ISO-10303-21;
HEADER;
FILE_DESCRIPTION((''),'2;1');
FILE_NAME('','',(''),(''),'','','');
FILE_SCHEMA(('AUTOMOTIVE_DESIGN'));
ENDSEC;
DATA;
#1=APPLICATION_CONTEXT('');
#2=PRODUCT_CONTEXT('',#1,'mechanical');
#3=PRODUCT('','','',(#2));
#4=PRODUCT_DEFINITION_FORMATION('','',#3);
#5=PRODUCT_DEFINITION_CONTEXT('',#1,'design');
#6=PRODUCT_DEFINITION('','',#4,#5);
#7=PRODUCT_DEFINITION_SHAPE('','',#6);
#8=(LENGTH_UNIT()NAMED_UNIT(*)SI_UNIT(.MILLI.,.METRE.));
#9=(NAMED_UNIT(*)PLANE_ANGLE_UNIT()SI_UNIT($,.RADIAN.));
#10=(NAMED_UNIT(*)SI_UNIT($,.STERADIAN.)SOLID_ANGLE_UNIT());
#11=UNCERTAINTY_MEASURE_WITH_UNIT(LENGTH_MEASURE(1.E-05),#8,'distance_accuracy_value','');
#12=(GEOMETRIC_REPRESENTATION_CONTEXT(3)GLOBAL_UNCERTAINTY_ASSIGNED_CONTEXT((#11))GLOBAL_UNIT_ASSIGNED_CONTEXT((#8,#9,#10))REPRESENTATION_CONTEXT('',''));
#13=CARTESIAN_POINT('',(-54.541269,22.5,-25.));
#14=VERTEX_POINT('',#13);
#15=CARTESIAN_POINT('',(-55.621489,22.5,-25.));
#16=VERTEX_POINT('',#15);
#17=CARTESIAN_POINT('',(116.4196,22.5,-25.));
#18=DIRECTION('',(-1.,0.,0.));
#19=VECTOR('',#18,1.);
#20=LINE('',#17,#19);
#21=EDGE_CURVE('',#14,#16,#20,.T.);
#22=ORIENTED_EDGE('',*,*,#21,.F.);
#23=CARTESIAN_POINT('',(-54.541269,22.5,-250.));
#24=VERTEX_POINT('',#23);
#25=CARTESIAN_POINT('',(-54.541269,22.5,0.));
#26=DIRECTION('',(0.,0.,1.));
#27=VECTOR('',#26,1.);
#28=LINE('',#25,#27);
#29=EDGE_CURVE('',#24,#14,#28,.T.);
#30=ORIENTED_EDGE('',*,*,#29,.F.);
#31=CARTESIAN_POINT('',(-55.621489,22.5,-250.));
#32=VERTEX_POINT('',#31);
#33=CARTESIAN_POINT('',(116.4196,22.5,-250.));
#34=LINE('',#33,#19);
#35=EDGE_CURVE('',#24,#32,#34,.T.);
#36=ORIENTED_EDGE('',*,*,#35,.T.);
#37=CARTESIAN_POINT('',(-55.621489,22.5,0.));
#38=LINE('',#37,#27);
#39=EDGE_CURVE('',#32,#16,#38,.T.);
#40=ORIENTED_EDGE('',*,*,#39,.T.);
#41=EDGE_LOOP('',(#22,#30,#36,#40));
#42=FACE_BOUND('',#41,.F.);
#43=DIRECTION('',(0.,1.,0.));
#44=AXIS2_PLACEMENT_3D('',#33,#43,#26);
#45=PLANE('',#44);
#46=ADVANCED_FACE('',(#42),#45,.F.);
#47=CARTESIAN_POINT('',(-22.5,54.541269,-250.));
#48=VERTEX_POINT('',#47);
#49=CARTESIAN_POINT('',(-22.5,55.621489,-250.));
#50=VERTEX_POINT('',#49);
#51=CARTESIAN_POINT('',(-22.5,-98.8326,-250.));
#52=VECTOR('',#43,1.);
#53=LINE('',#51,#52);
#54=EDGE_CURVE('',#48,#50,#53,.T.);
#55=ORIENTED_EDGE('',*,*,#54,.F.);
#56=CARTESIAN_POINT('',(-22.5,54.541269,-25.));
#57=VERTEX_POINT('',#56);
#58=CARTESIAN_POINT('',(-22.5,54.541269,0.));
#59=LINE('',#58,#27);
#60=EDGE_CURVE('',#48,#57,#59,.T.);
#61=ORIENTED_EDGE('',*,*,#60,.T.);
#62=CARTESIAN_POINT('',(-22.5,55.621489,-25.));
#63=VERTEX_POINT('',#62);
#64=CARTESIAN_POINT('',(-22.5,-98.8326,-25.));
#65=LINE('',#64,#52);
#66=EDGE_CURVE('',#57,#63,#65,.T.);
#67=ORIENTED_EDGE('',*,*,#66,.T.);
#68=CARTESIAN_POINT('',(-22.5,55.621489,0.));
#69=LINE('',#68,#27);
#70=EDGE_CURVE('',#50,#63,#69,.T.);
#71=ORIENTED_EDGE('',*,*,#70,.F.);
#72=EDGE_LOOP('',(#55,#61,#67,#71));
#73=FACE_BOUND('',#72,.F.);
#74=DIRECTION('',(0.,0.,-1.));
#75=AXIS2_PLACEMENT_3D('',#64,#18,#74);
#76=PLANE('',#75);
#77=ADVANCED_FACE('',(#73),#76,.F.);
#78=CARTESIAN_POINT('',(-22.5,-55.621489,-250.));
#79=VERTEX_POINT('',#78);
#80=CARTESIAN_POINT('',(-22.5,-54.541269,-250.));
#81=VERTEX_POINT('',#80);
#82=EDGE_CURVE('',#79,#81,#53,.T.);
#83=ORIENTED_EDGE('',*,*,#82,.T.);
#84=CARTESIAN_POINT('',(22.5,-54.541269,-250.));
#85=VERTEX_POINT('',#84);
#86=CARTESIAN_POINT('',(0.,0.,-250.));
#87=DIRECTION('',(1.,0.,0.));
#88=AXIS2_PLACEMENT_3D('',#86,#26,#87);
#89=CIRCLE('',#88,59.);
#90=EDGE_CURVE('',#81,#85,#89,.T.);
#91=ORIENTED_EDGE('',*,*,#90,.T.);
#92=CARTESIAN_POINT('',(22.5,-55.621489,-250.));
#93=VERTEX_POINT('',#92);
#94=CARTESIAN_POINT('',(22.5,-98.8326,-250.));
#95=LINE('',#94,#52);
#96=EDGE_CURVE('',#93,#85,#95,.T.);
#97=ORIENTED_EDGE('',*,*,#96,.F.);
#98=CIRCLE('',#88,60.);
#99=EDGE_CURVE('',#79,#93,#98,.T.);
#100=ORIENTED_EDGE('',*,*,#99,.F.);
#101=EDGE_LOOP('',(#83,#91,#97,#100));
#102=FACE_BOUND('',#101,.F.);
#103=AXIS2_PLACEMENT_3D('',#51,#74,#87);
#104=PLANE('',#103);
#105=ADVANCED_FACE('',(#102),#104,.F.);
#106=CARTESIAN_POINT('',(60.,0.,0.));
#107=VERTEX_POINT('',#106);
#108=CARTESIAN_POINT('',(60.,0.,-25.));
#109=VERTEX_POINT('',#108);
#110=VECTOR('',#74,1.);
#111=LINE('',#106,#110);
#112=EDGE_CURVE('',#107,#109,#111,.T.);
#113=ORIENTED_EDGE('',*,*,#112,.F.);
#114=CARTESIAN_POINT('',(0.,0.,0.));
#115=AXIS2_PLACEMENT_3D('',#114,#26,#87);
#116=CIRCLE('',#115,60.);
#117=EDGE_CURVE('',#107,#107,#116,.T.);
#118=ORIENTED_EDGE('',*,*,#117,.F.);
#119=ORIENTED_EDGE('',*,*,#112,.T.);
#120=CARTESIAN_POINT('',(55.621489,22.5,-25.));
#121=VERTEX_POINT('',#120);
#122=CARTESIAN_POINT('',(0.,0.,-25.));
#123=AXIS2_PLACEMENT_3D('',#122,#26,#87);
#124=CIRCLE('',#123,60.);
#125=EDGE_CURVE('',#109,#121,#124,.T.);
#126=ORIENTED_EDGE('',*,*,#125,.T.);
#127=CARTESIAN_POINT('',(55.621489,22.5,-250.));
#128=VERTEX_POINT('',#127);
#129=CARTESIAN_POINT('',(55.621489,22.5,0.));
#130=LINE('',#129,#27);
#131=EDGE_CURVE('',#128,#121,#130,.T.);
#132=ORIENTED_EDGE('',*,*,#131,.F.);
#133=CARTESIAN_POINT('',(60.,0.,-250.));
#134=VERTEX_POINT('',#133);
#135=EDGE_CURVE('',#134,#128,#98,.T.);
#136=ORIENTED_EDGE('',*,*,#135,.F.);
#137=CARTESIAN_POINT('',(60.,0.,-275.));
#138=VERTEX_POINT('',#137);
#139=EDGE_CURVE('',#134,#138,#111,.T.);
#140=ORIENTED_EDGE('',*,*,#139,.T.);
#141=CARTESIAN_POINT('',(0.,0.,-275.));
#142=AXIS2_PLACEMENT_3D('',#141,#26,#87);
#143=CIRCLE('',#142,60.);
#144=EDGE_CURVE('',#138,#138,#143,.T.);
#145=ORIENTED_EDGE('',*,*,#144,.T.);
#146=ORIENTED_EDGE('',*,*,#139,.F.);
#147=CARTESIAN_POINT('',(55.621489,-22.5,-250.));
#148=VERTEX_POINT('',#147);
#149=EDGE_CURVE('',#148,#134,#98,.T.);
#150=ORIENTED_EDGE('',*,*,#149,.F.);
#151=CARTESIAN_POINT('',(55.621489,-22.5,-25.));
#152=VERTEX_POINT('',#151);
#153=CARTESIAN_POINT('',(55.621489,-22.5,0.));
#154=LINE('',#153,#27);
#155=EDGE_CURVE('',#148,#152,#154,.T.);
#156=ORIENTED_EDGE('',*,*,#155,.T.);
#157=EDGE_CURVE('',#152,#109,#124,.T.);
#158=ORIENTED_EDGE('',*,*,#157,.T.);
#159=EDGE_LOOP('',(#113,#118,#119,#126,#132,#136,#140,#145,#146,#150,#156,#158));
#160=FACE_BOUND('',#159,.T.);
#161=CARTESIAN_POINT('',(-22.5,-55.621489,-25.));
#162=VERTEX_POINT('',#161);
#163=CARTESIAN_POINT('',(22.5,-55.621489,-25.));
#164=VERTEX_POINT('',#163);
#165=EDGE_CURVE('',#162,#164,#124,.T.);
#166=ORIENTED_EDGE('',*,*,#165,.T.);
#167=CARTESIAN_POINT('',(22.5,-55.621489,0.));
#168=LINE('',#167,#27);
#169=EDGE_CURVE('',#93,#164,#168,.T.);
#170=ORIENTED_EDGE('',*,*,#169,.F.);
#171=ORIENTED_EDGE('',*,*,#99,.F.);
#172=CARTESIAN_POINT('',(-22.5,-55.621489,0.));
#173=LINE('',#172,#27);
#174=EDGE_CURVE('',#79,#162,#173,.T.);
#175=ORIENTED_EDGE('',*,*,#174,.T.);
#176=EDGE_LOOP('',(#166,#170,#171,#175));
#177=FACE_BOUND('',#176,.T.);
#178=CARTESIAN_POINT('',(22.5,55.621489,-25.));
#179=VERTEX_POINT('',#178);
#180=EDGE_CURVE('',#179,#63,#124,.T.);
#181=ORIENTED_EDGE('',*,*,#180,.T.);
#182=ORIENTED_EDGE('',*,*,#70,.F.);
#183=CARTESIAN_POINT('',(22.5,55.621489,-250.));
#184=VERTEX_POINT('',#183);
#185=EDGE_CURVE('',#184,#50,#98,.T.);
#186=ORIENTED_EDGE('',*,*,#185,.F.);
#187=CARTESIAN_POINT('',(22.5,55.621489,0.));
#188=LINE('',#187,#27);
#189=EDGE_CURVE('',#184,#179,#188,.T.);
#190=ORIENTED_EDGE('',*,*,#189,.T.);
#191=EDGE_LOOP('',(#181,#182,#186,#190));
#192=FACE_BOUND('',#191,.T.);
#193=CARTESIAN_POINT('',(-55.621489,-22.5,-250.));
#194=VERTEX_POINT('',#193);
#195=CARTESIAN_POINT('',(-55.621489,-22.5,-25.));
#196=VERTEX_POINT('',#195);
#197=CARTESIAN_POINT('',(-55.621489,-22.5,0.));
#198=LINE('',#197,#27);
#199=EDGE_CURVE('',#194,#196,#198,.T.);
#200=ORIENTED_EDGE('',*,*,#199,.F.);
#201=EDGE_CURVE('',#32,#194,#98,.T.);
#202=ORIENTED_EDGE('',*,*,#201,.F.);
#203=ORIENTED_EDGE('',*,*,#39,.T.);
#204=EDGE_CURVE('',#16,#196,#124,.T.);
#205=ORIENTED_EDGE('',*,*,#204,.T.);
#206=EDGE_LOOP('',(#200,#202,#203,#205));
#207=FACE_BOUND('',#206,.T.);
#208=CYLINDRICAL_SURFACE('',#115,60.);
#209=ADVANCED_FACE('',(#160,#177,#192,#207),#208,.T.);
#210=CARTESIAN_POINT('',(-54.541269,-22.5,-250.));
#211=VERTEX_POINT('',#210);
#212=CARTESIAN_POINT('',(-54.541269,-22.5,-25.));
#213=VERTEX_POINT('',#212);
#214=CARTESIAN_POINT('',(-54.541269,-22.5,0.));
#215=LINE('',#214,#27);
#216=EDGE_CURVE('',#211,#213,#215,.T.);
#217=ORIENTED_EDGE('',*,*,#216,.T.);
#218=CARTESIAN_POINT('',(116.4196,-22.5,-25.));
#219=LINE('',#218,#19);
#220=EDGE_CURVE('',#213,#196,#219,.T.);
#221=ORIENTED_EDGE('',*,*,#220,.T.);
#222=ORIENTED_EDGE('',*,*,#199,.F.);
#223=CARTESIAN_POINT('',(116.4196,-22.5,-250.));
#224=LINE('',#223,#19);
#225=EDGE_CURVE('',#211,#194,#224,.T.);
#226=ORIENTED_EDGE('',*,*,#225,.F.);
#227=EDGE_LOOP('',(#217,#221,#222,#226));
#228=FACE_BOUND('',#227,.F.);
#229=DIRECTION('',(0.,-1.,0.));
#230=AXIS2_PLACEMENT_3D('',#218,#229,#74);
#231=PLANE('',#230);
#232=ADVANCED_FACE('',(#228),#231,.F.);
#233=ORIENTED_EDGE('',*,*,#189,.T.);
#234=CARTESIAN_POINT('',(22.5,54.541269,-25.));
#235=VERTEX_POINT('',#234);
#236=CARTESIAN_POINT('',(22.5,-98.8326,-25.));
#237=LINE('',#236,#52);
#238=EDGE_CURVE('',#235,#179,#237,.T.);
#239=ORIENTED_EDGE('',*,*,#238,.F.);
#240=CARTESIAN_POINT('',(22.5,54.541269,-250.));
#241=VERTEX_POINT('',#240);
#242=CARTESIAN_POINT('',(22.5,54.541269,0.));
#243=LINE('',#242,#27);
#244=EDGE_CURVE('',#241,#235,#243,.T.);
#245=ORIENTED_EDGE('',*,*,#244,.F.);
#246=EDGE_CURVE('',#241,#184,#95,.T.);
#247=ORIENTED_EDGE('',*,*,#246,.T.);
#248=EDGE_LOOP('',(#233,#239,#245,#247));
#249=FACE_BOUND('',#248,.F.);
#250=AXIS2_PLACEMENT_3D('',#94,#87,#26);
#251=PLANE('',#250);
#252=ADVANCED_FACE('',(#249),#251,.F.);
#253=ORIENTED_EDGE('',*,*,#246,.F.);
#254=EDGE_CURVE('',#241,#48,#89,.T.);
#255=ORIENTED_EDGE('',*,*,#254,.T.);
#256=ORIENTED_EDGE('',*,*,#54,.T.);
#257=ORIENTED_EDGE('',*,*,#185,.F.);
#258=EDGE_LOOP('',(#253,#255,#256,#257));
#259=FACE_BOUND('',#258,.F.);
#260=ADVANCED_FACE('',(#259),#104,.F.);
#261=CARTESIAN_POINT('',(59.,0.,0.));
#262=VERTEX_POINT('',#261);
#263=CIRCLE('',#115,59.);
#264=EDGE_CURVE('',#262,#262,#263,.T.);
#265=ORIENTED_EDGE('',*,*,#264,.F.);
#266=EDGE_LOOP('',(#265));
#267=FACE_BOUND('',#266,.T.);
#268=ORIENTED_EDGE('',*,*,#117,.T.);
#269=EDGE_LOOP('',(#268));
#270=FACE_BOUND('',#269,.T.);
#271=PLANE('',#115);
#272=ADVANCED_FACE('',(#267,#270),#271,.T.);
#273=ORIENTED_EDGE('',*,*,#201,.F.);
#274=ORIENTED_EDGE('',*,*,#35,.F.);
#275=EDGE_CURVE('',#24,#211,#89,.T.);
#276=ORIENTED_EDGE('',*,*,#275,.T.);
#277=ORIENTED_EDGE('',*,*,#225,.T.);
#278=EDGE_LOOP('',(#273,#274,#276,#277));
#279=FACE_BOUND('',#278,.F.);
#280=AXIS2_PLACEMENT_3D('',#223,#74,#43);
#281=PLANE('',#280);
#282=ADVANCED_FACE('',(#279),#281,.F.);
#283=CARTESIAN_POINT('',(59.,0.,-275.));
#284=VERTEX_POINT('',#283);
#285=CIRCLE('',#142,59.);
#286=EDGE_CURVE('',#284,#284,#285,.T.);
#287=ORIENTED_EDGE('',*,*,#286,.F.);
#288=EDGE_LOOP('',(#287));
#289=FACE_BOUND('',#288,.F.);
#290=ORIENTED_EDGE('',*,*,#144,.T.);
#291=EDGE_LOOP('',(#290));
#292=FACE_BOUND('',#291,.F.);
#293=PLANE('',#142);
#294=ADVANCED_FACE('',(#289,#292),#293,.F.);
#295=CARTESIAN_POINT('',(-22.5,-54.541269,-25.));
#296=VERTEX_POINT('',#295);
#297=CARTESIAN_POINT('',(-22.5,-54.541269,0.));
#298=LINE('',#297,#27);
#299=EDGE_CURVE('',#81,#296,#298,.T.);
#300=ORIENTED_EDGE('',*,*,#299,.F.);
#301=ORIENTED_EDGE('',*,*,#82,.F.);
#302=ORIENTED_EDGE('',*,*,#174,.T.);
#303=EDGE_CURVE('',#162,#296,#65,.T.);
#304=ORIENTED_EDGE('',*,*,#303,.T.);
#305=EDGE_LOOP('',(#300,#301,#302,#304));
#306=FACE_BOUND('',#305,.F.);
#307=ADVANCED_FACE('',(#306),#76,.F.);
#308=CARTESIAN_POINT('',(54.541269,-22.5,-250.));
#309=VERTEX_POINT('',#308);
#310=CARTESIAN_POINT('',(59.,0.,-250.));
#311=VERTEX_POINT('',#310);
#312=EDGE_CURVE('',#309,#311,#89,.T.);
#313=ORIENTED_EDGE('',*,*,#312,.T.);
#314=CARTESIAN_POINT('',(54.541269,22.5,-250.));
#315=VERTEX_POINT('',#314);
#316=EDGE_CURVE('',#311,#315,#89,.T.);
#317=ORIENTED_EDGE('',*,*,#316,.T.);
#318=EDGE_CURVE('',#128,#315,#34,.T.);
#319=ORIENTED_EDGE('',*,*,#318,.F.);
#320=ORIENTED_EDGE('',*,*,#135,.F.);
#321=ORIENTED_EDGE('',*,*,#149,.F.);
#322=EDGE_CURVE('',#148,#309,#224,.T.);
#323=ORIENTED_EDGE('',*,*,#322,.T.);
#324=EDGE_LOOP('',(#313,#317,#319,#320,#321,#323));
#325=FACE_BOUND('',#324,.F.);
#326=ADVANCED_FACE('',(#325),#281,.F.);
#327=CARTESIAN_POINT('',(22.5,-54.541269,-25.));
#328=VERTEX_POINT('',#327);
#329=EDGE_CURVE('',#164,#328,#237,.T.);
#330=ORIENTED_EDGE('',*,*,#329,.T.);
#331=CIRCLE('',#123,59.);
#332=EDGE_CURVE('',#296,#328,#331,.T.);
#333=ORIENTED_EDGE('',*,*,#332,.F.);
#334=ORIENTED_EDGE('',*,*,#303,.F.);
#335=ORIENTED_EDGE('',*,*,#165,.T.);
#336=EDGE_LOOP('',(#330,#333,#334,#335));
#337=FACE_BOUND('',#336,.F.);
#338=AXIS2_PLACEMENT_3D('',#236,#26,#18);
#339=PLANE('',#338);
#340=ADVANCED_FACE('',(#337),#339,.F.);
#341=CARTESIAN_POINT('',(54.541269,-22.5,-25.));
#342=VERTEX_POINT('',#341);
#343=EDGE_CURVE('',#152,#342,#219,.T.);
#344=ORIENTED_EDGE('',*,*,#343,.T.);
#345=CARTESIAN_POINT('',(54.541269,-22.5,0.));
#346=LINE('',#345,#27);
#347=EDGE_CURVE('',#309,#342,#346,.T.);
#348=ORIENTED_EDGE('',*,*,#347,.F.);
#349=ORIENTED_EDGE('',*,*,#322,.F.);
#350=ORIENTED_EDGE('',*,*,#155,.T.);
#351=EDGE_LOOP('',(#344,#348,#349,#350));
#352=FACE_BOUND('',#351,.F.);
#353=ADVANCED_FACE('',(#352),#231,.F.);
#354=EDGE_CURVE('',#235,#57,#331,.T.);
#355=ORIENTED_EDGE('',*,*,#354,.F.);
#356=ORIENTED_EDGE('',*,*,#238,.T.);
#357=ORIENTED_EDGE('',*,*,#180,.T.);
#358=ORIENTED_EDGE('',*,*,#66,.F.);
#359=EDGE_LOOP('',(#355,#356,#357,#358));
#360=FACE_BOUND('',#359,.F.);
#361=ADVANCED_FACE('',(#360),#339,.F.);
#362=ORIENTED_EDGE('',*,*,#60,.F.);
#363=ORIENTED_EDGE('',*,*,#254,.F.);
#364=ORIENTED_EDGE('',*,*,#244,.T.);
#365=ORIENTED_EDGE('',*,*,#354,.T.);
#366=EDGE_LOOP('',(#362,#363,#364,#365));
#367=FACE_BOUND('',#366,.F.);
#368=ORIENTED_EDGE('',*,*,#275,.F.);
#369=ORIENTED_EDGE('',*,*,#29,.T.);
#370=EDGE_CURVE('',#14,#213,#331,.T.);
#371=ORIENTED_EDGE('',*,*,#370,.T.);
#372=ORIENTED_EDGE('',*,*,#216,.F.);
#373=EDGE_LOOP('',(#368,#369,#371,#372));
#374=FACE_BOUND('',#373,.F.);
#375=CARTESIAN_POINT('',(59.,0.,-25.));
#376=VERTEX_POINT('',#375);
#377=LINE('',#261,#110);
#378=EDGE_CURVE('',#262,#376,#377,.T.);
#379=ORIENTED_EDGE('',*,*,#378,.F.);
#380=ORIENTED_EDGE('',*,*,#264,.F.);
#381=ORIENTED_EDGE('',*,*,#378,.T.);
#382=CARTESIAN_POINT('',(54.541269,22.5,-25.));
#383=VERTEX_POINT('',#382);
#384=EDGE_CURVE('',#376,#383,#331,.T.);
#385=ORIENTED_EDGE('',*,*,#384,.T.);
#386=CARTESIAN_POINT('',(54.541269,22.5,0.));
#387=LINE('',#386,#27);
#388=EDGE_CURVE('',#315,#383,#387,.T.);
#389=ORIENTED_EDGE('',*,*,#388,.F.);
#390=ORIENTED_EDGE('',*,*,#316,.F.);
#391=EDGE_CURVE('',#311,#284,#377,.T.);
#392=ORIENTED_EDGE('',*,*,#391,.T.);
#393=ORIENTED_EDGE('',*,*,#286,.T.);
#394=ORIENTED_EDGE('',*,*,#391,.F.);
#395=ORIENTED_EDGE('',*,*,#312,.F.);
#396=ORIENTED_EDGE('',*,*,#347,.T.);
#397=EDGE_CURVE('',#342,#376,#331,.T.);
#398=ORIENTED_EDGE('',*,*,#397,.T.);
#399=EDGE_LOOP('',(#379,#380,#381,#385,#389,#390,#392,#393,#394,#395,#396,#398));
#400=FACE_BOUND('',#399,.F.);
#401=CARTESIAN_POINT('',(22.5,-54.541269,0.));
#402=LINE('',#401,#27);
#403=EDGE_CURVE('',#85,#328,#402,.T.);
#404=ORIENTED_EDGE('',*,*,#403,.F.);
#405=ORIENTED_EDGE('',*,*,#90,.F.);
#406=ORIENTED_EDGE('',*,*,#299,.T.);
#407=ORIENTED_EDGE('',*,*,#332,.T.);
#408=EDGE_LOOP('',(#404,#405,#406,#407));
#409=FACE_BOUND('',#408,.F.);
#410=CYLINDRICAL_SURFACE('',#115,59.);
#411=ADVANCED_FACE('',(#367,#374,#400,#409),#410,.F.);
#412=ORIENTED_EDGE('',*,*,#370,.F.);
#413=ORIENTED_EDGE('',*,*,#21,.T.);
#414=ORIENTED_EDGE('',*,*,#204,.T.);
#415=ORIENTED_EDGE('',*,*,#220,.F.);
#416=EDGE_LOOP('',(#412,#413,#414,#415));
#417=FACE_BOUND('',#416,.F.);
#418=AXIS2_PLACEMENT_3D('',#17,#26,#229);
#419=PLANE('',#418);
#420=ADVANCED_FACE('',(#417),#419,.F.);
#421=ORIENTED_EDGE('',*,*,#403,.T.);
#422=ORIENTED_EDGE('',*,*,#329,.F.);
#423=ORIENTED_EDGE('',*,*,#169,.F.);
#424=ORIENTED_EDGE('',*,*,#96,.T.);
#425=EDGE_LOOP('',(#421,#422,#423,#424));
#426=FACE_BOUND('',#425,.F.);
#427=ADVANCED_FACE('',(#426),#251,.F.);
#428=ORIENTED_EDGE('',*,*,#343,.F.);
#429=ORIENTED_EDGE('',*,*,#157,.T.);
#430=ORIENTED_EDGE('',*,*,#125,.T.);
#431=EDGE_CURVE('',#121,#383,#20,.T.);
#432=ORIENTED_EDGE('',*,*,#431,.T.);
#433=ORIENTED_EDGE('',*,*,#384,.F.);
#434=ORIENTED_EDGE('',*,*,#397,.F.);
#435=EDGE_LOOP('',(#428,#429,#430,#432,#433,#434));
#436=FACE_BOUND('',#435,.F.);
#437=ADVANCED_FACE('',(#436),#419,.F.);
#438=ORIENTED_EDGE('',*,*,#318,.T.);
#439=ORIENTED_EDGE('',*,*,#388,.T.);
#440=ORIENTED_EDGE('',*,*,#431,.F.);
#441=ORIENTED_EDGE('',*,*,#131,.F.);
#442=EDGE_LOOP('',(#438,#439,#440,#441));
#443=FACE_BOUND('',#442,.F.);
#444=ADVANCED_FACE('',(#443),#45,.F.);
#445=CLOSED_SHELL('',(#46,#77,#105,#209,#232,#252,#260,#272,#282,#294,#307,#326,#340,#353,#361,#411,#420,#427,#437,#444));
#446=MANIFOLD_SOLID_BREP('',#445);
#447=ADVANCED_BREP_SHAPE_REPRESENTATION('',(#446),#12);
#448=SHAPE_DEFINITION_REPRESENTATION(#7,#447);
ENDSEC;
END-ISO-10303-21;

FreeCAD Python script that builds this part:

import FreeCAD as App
import Part
import Sketcher

V = App.Vector


def add_polygon(sketch, points):
    """Adds a closed chain of lines whose ends are joined by coincident constraints."""
    first, n = sketch.GeometryCount, len(points)
    for a, b in zip(points, points[1:] + points[:1]):
        sketch.addGeometry(Part.LineSegment(App.Vector(*a, 0), App.Vector(*b, 0)), False)
    for i in range(n):
        sketch.addConstraint(Sketcher.Constraint("Coincident", first + i, 2, first + (i + 1) % n, 1))

doc = App.newDocument("Part")
body = doc.addObject("PartDesign::Body", "Body")

# Sketch on XY plane
sketch1 = body.newObject("Sketcher::SketchObject", "Sketch")
sketch1.AttachmentSupport = (doc.getObject("XY_Plane"), [""])
sketch1.MapMode = "FlatFace"
sketch1.addGeometry(Part.Circle(V(0, 0, 0), V(0, 0, 1), 60), False)
sketch1.addConstraint([
    Sketcher.Constraint("Coincident", 0, 3, -1, 1),
    Sketcher.Constraint("Diameter", 0, 120.0),
])
pad1 = body.newObject("PartDesign::Pad", "Pad")
pad1.Profile = sketch1
pad1.Length = 275
pad1.Reversed = True

# Sketch on XY plane
sketch2 = body.newObject("Sketcher::SketchObject", "Sketch001")
sketch2.AttachmentSupport = (doc.getObject("XY_Plane"), [""])
sketch2.MapMode = "FlatFace"
sketch2.addGeometry(Part.Circle(V(0, 0, 0), V(0, 0, 1), 59), False)
sketch2.addConstraint([
    Sketcher.Constraint("Coincident", 0, 3, -1, 1),
    Sketcher.Constraint("Diameter", 0, 118.0),
])
pocket1 = body.newObject("PartDesign::Pocket", "Pocket")
pocket1.Profile = sketch2
pocket1.Type = "UpToFirst"

# Sketch on XZ plane
sketch3 = body.newObject("Sketcher::SketchObject", "Sketch002")
sketch3.AttachmentSupport = (doc.getObject("XZ_Plane"), [""])
sketch3.MapMode = "FlatFace"
sketch3.AttachmentOffset = App.Placement(V(0, 0, 98.8326), App.Rotation())
add_polygon(sketch3, [(-22, -25), (-22, -250), (22, -250), (22, -25)])  # lines 0-3
sketch3.addConstraint([
    Sketcher.Constraint("Vertical", 0),
    Sketcher.Constraint("Horizontal", 1),
    Sketcher.Constraint("Vertical", 2),
    Sketcher.Constraint("Horizontal", 3),
    Sketcher.Constraint("DistanceX", 0, 2, -1, 1, 22.5),
    Sketcher.Constraint("DistanceX", -1, 1, 1, 2, 22.5),
    Sketcher.Constraint("DistanceY", 0, 2, 0, 1, 225.0),
    Sketcher.Constraint("DistanceY", 0, 2, -1, 1, 250.0),
])
pocket2 = body.newObject("PartDesign::Pocket", "Pocket001")
pocket2.Profile = sketch3
pocket2.Length = 261.0003

# Sketch on YZ plane
sketch4 = body.newObject("Sketcher::SketchObject", "Sketch003")
sketch4.AttachmentSupport = (doc.getObject("YZ_Plane"), [""])
sketch4.MapMode = "FlatFace"
sketch4.AttachmentOffset = App.Placement(V(0, 0, 116.4196), App.Rotation())
add_polygon(sketch4, [(-22, -25), (-22, -250), (22, -250), (22, -25)])  # lines 0-3
sketch4.addConstraint([
    Sketcher.Constraint("Vertical", 0),
    Sketcher.Constraint("Horizontal", 1),
    Sketcher.Constraint("Vertical", 2),
    Sketcher.Constraint("Horizontal", 3),
    Sketcher.Constraint("DistanceX", 0, 2, -1, 1, 22.5),
    Sketcher.Constraint("DistanceX", -1, 1, 1, 2, 22.5),
    Sketcher.Constraint("DistanceY", 0, 2, 0, 1, 225.0),
    Sketcher.Constraint("DistanceY", 0, 2, -1, 1, 250.0),
])
pocket3 = body.newObject("PartDesign::Pocket", "Pocket002")
pocket3.Profile = sketch4
pocket3.Length = 221.6217

doc.recompute()
